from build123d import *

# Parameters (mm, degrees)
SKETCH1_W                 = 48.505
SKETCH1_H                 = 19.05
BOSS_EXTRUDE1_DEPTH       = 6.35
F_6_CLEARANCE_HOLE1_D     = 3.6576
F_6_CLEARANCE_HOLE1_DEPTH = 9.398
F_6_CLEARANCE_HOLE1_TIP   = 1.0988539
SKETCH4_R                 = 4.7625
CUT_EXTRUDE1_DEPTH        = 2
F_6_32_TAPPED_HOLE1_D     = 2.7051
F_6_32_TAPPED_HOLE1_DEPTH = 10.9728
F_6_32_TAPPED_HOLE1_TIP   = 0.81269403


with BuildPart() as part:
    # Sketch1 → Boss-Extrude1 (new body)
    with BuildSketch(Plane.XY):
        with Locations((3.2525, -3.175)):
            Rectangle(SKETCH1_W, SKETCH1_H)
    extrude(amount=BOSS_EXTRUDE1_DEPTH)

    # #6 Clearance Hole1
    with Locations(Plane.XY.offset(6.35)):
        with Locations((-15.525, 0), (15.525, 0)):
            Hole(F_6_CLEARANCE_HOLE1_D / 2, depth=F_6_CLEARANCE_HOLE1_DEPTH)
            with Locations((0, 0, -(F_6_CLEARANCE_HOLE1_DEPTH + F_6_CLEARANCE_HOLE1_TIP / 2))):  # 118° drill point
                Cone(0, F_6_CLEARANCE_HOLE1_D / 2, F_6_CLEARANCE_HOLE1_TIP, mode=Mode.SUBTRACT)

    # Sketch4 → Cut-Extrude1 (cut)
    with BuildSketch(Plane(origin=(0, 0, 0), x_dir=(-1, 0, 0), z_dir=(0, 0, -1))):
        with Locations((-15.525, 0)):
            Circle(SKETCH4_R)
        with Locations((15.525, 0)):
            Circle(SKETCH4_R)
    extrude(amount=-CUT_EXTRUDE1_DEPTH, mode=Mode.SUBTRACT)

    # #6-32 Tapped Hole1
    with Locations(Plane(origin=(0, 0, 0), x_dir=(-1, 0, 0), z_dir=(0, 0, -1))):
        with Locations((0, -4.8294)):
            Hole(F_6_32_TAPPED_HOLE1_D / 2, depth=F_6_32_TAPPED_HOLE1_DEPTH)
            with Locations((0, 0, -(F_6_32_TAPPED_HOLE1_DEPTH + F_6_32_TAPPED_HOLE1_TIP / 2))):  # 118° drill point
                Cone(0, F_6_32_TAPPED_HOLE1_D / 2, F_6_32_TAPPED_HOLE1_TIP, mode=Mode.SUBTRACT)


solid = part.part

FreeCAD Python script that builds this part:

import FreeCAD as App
import Part
import Sketcher
Q = App.Units.Quantity


def add_polygon(sketch, points):
    """Adds a closed chain of lines whose ends are joined by coincident constraints."""
    first, n = sketch.GeometryCount, len(points)
    for a, b in zip(points, points[1:] + points[:1]):
        sketch.addGeometry(Part.LineSegment(App.Vector(*a, 0), App.Vector(*b, 0)), False)
    for i in range(n):
        sketch.addConstraint(Sketcher.Constraint("Coincident", first + i, 2, first + (i + 1) % n, 1))

doc = App.newDocument("Part")
body = doc.addObject("PartDesign::Body", "Body")

# Sketch on XY plane
sketch1 = body.newObject("Sketcher::SketchObject", "Sketch")
sketch1.AttachmentSupport = (doc.getObject("XY_Plane"), [""])
sketch1.MapMode = "FlatFace"
add_polygon(sketch1, [(-21, 6.35), (-21, -12.7), (27.505, -12.7), (27.505, 6.35)])  # lines 0-3
sketch1.addConstraint([
    Sketcher.Constraint("Vertical", 0),
    Sketcher.Constraint("Horizontal", 1),
    Sketcher.Constraint("Vertical", 2),
    Sketcher.Constraint("Horizontal", 3),
    Sketcher.Constraint("DistanceY", 0, 2, 0, 1, Q("0.75 in")),
    Sketcher.Constraint("DistanceY", 0, 2, -1, 1, Q("0.5 in")),
    Sketcher.Constraint("DistanceX", 1, 1, 1, 2, Q("48.505 mm")),
    Sketcher.Constraint("DistanceX", 0, 2, -1, 1, Q("21 mm")),
])
pad1 = body.newObject("PartDesign::Pad", "Pad")
pad1.Profile = sketch1
pad1.Length = Q("0.25 in")

# Sketch on XY plane
sketch2 = body.newObject("Sketcher::SketchObject", "Sketch001")
sketch2.AttachmentSupport = (doc.getObject("XY_Plane"), [""])
sketch2.MapMode = "FlatFace"
sketch2.AttachmentOffset = App.Placement(App.Vector(0, 0, 0.25 * 25.4), App.Rotation())
sketch2.addGeometry([
    Part.Circle(App.Vector(-15.525, 0, 0), App.Vector(0, 0, 1), 1.8288),
    Part.Circle(App.Vector(15.525, 0, 0), App.Vector(0, 0, 1), 1.8288),
], False)
sketch2.addConstraint([
    Sketcher.Constraint("Equal", 0, 1),
    Sketcher.Constraint("Symmetric", 0, 3, 1, 3, -1, 1),
    Sketcher.Constraint("PointOnObject", 0, 3, -1),
    Sketcher.Constraint("Diameter", 0, Q("0.144 in")),
    Sketcher.Constraint("DistanceX", 0, 3, -1, 1, Q("15.525 mm")),
])
doc.recompute()
hole = body.newObject("PartDesign::Hole", "Hole")
hole.Profile = sketch2
hole.ThreadType = "None"
hole.Diameter = Q("0.144 in")
hole.DepthType = "Dimension"
hole.Depth = Q("0.37 in")
hole.DrillPoint = "Angled"
hole.DrillPointAngle = 118

# Sketch on XY plane
sketch3 = body.newObject("Sketcher::SketchObject", "Sketch002")
sketch3.AttachmentSupport = (doc.getObject("XY_Plane"), [""])
sketch3.MapMode = "FlatFace"
sketch3.addGeometry([
    Part.Circle(App.Vector(15.525, 0, 0), App.Vector(0, 0, 1), 4.7625),
    Part.Circle(App.Vector(-15.525, 0, 0), App.Vector(0, 0, 1), 4.7625),
], False)
sketch3.addConstraint([
    Sketcher.Constraint("Equal", 0, 1),
    Sketcher.Constraint("Symmetric", 0, 3, 1, 3, -1, 1),
    Sketcher.Constraint("PointOnObject", 0, 3, -1),
    Sketcher.Constraint("Diameter", 0, Q("0.375 in")),
    Sketcher.Constraint("DistanceX", -1, 1, 0, 3, Q("15.525 mm")),
])
pocket1 = body.newObject("PartDesign::Pocket", "Pocket")
pocket1.Profile = sketch3
pocket1.Length = 2
pocket1.Reversed = True

# Sketch on XY plane
sketch4 = body.newObject("Sketcher::SketchObject", "Sketch003")
sketch4.AttachmentSupport = (doc.getObject("XY_Plane"), [""])
sketch4.MapMode = "FlatFace"
sketch4.addGeometry(Part.Circle(App.Vector(0, -4.8294, 0), App.Vector(0, 0, 1), 1.35255), False)
sketch4.addConstraint([
    Sketcher.Constraint("PointOnObject", 0, 3, -2),
    Sketcher.Constraint("Diameter", 0, Q("0.1065 in")),
    Sketcher.Constraint("DistanceY", 0, 3, -1, 1, Q("4.8294 mm")),
])
doc.recompute()
hole2 = body.newObject("PartDesign::Hole", "Hole001")
hole2.Profile = sketch4
hole2.ThreadType = "None"
hole2.Diameter = Q("0.1065 in")
hole2.DepthType = "Dimension"
hole2.Depth = Q("0.432 in")
hole2.DrillPoint = "Angled"
hole2.DrillPointAngle = 118
hole2.Reversed = True

doc.recompute()
